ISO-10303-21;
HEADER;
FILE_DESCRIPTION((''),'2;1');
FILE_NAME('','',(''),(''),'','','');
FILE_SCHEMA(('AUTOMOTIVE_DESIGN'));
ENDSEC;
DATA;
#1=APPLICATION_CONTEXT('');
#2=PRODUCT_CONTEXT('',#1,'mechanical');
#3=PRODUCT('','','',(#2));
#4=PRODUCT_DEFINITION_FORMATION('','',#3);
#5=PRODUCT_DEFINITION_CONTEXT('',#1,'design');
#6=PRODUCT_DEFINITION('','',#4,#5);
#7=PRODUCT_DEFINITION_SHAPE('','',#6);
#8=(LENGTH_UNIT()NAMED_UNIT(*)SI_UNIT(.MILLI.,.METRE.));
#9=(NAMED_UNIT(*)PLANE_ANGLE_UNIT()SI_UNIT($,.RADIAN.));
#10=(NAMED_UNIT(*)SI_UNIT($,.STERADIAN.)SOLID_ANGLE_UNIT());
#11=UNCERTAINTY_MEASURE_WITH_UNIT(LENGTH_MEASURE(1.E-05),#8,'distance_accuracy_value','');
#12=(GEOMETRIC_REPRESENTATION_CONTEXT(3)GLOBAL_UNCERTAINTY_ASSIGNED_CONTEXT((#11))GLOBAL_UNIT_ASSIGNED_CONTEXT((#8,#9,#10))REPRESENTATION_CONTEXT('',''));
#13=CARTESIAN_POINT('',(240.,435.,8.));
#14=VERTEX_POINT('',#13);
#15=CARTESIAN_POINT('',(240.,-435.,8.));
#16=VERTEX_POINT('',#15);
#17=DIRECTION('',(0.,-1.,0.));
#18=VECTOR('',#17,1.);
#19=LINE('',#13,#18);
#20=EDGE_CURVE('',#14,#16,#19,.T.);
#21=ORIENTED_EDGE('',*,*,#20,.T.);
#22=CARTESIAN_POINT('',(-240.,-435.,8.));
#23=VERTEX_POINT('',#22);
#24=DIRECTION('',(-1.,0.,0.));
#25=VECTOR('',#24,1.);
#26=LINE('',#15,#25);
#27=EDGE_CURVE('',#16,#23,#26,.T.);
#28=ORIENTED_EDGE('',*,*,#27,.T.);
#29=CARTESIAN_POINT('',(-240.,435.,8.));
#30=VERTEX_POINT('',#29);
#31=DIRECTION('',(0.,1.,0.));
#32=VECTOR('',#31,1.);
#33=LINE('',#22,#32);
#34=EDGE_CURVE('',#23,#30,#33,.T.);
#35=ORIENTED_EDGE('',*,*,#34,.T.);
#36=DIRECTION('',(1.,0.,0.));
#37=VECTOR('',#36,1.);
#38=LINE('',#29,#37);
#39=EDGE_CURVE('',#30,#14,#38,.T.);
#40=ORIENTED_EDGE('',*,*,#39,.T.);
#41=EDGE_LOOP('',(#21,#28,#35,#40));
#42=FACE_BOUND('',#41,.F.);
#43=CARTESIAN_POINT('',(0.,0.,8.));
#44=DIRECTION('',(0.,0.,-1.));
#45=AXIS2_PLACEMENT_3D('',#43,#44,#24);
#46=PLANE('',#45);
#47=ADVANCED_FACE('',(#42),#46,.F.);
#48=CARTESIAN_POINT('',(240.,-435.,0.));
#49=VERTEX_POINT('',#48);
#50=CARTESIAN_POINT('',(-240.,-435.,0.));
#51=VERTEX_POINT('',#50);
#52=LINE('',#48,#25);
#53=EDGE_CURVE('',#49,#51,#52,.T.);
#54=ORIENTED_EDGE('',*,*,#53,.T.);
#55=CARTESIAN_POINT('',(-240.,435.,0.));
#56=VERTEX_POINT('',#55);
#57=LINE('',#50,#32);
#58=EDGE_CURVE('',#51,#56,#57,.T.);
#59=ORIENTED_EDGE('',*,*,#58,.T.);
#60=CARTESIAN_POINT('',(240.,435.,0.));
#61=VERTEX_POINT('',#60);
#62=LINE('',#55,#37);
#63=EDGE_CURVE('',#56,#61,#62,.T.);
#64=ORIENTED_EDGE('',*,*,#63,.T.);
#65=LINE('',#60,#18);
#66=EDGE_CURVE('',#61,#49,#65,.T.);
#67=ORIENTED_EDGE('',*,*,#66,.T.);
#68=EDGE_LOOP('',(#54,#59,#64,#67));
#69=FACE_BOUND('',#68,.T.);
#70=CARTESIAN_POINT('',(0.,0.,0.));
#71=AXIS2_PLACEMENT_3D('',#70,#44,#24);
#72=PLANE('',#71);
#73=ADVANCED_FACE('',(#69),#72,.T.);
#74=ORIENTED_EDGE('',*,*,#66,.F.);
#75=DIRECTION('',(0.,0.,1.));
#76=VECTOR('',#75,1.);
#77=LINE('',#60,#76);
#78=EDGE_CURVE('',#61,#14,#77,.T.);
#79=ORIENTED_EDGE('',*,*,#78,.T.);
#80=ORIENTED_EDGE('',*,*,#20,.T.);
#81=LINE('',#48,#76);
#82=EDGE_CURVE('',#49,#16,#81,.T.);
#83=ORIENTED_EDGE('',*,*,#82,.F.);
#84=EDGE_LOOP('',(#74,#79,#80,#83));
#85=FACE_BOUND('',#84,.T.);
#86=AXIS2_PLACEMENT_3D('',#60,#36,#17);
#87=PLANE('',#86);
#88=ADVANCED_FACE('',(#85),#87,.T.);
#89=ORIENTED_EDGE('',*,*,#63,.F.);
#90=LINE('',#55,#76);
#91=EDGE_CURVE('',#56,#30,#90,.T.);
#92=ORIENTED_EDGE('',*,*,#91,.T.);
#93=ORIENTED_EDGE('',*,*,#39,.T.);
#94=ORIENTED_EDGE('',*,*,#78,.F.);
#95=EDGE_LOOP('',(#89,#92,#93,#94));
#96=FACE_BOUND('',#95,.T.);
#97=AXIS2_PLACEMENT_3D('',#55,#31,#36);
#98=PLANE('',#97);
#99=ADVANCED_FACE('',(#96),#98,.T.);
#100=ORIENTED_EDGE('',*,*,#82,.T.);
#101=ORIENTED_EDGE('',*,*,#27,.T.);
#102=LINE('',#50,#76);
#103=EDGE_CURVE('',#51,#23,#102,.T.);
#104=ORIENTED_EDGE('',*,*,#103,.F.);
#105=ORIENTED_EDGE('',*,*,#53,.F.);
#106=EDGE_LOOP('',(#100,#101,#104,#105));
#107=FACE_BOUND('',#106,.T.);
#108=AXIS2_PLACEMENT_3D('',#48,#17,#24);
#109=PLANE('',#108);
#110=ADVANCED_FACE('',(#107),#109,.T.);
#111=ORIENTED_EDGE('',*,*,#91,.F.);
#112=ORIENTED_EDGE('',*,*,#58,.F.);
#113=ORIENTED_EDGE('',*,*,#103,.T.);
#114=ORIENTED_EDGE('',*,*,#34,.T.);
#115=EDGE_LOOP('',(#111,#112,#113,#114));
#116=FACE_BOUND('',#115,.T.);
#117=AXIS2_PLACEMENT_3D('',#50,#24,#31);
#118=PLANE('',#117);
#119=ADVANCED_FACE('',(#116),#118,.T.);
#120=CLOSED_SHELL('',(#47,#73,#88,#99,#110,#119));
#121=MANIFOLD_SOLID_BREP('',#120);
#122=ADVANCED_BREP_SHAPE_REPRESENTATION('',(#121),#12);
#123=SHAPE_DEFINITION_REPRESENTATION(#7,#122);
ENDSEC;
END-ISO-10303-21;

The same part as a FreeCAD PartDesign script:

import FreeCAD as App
import Part
import Sketcher


def add_polygon(sketch, points):
    """Adds a closed chain of lines whose ends are joined by coincident constraints."""
    first, n = sketch.GeometryCount, len(points)
    for a, b in zip(points, points[1:] + points[:1]):
        sketch.addGeometry(Part.LineSegment(App.Vector(*a, 0), App.Vector(*b, 0)), False)
    for i in range(n):
        sketch.addConstraint(Sketcher.Constraint("Coincident", first + i, 2, first + (i + 1) % n, 1))

doc = App.newDocument("Part")
body = doc.addObject("PartDesign::Body", "Body")

# Sketch on XY plane
sketch1 = body.newObject("Sketcher::SketchObject", "Sketch")
sketch1.AttachmentSupport = (doc.getObject("XY_Plane"), [""])
sketch1.MapMode = "FlatFace"
add_polygon(sketch1, [(240, 435), (240, -435), (-240, -435), (-240, 435)])  # lines 0-3
sketch1.addConstraint(Sketcher.Constraint("Vertical", 0))
sketch1.addConstraint(Sketcher.Constraint("Horizontal", 1))
sketch1.addConstraint(Sketcher.Constraint("Vertical", 2))
sketch1.addConstraint(Sketcher.Constraint("Horizontal", 3))
sketch1.addConstraint(Sketcher.Constraint("Symmetric", 0, 2, 2, 2, -1, 1))
sketch1.addConstraint(Sketcher.Constraint("DistanceX", 1, 2, 1, 1, 480.0))
sketch1.addConstraint(Sketcher.Constraint("DistanceY", 0, 2, 0, 1, 870.0))
pad1 = body.newObject("PartDesign::Pad", "Pad")
pad1.Profile = sketch1
pad1.Length = 8

doc.recompute()
